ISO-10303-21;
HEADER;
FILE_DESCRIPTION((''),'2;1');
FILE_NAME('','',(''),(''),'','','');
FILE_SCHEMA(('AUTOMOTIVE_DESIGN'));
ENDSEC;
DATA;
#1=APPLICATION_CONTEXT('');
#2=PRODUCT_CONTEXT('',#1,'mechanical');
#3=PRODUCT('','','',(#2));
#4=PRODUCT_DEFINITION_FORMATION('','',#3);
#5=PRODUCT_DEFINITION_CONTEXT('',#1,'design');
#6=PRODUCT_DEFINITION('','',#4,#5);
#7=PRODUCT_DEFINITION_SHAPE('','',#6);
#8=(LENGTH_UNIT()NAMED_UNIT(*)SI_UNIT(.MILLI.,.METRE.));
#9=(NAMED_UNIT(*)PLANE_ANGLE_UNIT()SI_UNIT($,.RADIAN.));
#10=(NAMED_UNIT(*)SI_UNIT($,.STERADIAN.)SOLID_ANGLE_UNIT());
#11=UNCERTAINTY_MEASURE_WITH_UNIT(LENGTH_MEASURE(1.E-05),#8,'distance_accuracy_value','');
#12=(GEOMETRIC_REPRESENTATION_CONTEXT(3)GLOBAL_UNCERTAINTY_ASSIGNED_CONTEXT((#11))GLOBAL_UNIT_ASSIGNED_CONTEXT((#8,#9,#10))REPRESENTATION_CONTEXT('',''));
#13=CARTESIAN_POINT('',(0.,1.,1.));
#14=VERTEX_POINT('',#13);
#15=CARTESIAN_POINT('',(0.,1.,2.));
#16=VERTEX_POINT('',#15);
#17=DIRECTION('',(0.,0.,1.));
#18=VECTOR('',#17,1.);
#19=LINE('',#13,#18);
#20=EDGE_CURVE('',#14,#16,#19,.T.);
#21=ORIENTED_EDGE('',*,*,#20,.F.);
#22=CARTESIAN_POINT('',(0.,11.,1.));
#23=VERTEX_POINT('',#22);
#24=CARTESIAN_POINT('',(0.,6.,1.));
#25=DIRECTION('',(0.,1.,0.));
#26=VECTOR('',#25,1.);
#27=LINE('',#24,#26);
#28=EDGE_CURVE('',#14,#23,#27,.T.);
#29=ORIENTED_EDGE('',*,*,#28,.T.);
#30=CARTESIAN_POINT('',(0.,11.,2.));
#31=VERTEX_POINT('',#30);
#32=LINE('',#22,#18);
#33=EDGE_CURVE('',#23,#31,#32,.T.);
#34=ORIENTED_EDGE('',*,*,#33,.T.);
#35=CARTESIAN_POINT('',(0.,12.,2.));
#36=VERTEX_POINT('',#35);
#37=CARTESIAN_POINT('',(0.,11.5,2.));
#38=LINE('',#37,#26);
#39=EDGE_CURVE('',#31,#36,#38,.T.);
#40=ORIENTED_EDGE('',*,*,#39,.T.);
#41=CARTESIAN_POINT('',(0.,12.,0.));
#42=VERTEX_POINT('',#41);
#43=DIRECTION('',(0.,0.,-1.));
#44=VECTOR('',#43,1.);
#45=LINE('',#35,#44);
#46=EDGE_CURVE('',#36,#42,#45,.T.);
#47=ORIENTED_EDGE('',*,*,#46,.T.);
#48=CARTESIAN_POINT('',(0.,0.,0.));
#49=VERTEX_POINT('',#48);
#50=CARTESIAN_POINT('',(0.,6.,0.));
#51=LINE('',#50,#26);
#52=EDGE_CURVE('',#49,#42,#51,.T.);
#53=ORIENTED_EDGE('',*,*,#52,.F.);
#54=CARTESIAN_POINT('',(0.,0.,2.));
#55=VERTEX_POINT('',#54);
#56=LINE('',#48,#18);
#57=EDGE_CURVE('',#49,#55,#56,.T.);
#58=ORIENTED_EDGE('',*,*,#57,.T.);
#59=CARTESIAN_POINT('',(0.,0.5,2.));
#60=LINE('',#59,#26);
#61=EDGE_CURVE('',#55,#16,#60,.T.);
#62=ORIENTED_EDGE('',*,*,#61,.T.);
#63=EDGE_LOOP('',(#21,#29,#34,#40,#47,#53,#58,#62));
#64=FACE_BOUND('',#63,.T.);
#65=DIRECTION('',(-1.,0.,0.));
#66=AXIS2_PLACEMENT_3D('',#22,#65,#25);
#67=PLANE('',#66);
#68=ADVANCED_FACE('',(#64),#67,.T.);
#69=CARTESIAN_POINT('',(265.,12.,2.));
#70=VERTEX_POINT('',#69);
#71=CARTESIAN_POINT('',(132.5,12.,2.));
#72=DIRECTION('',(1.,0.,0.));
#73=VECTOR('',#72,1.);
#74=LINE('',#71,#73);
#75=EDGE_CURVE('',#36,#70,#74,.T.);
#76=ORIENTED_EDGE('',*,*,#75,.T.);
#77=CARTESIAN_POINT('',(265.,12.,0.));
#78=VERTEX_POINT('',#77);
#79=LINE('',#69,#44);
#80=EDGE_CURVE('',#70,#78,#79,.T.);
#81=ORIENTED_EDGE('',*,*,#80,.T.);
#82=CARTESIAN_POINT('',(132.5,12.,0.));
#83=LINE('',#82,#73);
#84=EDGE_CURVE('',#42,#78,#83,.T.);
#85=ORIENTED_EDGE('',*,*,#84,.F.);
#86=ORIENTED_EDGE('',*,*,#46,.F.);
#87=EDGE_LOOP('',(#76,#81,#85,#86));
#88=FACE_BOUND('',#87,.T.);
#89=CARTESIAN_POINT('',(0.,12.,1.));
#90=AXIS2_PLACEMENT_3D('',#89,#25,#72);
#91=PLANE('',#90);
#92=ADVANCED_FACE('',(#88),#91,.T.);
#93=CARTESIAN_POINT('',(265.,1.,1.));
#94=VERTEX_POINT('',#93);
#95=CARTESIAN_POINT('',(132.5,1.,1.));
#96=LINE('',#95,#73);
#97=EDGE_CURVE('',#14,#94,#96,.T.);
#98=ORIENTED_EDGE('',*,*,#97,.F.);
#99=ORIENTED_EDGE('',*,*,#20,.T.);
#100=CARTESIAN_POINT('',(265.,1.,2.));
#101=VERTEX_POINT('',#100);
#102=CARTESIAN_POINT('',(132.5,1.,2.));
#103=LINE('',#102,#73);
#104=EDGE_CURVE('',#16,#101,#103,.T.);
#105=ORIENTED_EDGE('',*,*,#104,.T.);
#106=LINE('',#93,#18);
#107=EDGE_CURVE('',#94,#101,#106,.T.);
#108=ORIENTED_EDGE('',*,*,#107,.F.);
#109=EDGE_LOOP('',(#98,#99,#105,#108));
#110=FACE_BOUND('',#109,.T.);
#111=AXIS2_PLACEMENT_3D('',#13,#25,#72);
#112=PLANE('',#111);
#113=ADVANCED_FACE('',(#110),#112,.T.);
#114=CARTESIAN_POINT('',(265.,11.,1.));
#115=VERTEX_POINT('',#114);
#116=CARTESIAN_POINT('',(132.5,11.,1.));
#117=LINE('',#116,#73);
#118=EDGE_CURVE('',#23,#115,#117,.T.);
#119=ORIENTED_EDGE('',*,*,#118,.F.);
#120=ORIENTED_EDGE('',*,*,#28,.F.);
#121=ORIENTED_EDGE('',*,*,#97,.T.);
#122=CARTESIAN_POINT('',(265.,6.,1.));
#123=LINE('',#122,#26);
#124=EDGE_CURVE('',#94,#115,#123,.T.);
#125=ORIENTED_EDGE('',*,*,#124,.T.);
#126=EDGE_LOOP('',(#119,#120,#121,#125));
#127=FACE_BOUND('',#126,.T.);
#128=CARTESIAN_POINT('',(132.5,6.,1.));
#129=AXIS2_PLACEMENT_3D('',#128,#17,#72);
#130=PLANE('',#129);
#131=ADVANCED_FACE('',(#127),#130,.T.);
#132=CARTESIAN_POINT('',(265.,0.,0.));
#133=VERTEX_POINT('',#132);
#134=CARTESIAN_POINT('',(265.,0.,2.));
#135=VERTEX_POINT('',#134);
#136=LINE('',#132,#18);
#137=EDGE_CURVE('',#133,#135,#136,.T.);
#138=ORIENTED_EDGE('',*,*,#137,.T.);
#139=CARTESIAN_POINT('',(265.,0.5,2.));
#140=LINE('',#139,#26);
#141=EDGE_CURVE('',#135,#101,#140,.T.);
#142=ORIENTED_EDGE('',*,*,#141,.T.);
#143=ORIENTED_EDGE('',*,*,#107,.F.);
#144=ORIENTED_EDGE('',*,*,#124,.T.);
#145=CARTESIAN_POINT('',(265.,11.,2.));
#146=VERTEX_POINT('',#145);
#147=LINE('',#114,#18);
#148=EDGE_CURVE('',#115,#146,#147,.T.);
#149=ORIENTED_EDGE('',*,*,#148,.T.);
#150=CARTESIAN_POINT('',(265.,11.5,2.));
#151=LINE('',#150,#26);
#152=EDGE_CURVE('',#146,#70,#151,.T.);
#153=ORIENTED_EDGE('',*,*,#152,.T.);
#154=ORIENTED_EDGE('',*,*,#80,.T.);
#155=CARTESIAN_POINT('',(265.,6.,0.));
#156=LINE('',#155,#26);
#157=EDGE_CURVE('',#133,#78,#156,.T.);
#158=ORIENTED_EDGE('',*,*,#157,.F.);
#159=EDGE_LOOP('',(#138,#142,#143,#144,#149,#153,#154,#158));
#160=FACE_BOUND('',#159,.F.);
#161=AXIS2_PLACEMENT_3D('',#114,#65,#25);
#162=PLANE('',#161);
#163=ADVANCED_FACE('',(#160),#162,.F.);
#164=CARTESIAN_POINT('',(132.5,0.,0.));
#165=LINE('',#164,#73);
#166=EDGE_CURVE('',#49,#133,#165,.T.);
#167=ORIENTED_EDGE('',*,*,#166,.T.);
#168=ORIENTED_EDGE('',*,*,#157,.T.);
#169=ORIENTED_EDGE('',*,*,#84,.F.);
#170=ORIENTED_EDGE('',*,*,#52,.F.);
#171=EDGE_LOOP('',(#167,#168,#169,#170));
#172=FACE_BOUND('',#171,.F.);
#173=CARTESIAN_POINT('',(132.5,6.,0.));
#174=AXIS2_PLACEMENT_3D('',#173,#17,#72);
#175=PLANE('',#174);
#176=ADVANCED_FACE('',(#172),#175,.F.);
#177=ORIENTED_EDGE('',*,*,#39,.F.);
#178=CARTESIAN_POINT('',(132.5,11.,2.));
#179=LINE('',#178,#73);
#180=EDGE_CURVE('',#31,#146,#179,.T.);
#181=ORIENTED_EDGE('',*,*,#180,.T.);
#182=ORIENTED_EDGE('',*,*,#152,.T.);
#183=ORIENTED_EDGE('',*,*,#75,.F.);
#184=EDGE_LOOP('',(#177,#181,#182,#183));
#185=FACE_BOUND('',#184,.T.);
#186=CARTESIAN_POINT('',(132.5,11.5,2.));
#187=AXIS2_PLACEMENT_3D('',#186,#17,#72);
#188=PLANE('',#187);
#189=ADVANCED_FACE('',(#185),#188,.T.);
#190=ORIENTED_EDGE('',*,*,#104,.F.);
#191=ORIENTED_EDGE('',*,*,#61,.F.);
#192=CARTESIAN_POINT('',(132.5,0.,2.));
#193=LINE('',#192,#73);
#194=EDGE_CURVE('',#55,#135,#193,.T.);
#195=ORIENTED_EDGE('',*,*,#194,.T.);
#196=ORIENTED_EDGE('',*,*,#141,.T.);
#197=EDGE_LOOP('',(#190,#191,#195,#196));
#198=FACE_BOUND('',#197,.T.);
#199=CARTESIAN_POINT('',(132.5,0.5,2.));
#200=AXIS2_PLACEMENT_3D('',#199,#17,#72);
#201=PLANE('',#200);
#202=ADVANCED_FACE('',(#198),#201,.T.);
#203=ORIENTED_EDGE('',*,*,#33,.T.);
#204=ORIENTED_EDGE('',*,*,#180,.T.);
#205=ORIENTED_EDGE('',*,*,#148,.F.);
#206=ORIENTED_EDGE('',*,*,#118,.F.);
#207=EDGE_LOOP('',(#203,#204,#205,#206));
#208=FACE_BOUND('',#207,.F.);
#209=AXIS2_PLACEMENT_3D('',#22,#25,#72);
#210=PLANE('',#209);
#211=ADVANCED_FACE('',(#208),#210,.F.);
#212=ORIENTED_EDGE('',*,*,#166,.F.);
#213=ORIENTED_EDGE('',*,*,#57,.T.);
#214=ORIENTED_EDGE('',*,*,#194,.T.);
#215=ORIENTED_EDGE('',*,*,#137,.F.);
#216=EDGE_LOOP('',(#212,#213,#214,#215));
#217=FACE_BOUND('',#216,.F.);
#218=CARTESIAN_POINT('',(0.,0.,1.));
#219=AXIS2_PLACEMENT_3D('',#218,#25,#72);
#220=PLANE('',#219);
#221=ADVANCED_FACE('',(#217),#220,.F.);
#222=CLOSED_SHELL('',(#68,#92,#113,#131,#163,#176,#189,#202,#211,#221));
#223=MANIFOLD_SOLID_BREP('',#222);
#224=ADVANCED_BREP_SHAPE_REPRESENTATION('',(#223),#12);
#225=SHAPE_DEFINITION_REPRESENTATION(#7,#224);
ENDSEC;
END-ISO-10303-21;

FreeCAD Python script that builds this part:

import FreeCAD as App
import Part
import Sketcher
Q = App.Units.Quantity

doc = App.newDocument("Part")
body = doc.addObject("PartDesign::Body", "Body")

sketch1 = doc.addObject("Sketcher::SketchObject", "Sketch")
body.addObject(sketch1)
sketch1.AttachmentSupport = (doc.XY_Plane, [""])
sketch1.MapMode = "FlatFace"
sketch1.AttachmentOffset = App.Placement(App.Vector(0, 0, 1), App.Rotation())
sketch1.addGeometry(Part.LineSegment(App.Vector(0, 1, 0), App.Vector(0, 0, 0)), False)
sketch1.addGeometry(Part.LineSegment(App.Vector(0, 0, 0), App.Vector(265, 0, 0)), False)
sketch1.addGeometry(Part.LineSegment(App.Vector(265, 0, 0), App.Vector(265, 1, 0)), False)
sketch1.addGeometry(Part.LineSegment(App.Vector(265, 1, 0), App.Vector(0, 1, 0)), False)
sketch1.addConstraint(Sketcher.Constraint("Coincident", 0, 2, 1, 1))
sketch1.addConstraint(Sketcher.Constraint("Coincident", 1, 2, 2, 1))
sketch1.addConstraint(Sketcher.Constraint("Coincident", 2, 2, 3, 1))
sketch1.addConstraint(Sketcher.Constraint("Coincident", 3, 2, 0, 1))
sketch1.addConstraint(Sketcher.Constraint("Vertical", 0))
sketch1.addConstraint(Sketcher.Constraint("Horizontal", 1))
sketch1.addConstraint(Sketcher.Constraint("Vertical", 2))
sketch1.addConstraint(Sketcher.Constraint("Horizontal", 3))
sketch1.addConstraint(Sketcher.Constraint("Coincident", 0, 2, -1, 1))
sketch1.addConstraint(Sketcher.Constraint("DistanceX", 1, 1, 1, 2, Q("265 mm")))
sketch1.addConstraint(Sketcher.Constraint("DistanceY", 0, 2, 0, 1, Q("1 mm")))
pad1 = doc.addObject("PartDesign::Pad", "Pad")
body.addObject(pad1)
pad1.Profile = sketch1
pad1.Length = 1
body2 = doc.addObject("PartDesign::Body", "Body001")

sketch2 = doc.addObject("Sketcher::SketchObject", "Sketch001")
body2.addObject(sketch2)
sketch2.AttachmentSupport = (doc.getObject("XY_Plane001"), [""])
sketch2.MapMode = "FlatFace"
sketch2.AttachmentOffset = App.Placement(App.Vector(0, 0, 1), App.Rotation())
sketch2.addGeometry(Part.LineSegment(App.Vector(0, 12, 0), App.Vector(0, 11, 0)), False)
sketch2.addGeometry(Part.LineSegment(App.Vector(0, 11, 0), App.Vector(265, 11, 0)), False)
sketch2.addGeometry(Part.LineSegment(App.Vector(265, 11, 0), App.Vector(265, 12, 0)), False)
sketch2.addGeometry(Part.LineSegment(App.Vector(265, 12, 0), App.Vector(0, 12, 0)), False)
sketch2.addConstraint(Sketcher.Constraint("Coincident", 0, 2, 1, 1))
sketch2.addConstraint(Sketcher.Constraint("Coincident", 1, 2, 2, 1))
sketch2.addConstraint(Sketcher.Constraint("Coincident", 2, 2, 3, 1))
sketch2.addConstraint(Sketcher.Constraint("Coincident", 3, 2, 0, 1))
sketch2.addConstraint(Sketcher.Constraint("Vertical", 0))
sketch2.addConstraint(Sketcher.Constraint("Horizontal", 1))
sketch2.addConstraint(Sketcher.Constraint("Vertical", 2))
sketch2.addConstraint(Sketcher.Constraint("Horizontal", 3))
sketch2.addConstraint(Sketcher.Constraint("PointOnObject", 0, 2, -2))
sketch2.addConstraint(Sketcher.Constraint("DistanceX", 1, 1, 1, 2, Q("265 mm")))
sketch2.addConstraint(Sketcher.Constraint("DistanceY", 0, 2, 0, 1, Q("1 mm")))
sketch2.addConstraint(Sketcher.Constraint("DistanceY", -1, 1, 0, 2, Q("11 mm")))
pad2 = doc.addObject("PartDesign::Pad", "Pad001")
body2.addObject(pad2)
pad2.Profile = sketch2
pad2.Length = 1
body3 = doc.addObject("PartDesign::Body", "Body002")

sketch3 = doc.addObject("Sketcher::SketchObject", "Sketch002")
body3.addObject(sketch3)
sketch3.AttachmentSupport = (doc.getObject("XY_Plane002"), [""])
sketch3.MapMode = "FlatFace"
sketch3.addGeometry(Part.LineSegment(App.Vector(0, 12, 0), App.Vector(0, 0, 0)), False)
sketch3.addGeometry(Part.LineSegment(App.Vector(0, 0, 0), App.Vector(265, 0, 0)), False)
sketch3.addGeometry(Part.LineSegment(App.Vector(265, 0, 0), App.Vector(265, 12, 0)), False)
sketch3.addGeometry(Part.LineSegment(App.Vector(265, 12, 0), App.Vector(0, 12, 0)), False)
sketch3.addConstraint(Sketcher.Constraint("Coincident", 0, 2, 1, 1))
sketch3.addConstraint(Sketcher.Constraint("Coincident", 1, 2, 2, 1))
sketch3.addConstraint(Sketcher.Constraint("Coincident", 2, 2, 3, 1))
sketch3.addConstraint(Sketcher.Constraint("Coincident", 3, 2, 0, 1))
sketch3.addConstraint(Sketcher.Constraint("Vertical", 0))
sketch3.addConstraint(Sketcher.Constraint("Horizontal", 1))
sketch3.addConstraint(Sketcher.Constraint("Vertical", 2))
sketch3.addConstraint(Sketcher.Constraint("Horizontal", 3))
sketch3.addConstraint(Sketcher.Constraint("Coincident", 0, 2, -1, 1))
sketch3.addConstraint(Sketcher.Constraint("DistanceX", 1, 1, 1, 2, Q("265 mm")))
sketch3.addConstraint(Sketcher.Constraint("DistanceY", 0, 2, 0, 1, Q("12 mm")))
pad3 = doc.addObject("PartDesign::Pad", "Pad002")
body3.addObject(pad3)
pad3.Profile = sketch3
pad3.Length = 1
doc.recompute()

boolean = doc.addObject("PartDesign::Boolean", "Boolean")
body3.addObject(boolean)
boolean.Type = "Fuse"
boolean.addObjects([body])
doc.recompute()

boolean2 = doc.addObject("PartDesign::Boolean", "Boolean001")
body3.addObject(boolean2)
boolean2.Type = "Fuse"
boolean2.addObjects([body2])

doc.recompute()
